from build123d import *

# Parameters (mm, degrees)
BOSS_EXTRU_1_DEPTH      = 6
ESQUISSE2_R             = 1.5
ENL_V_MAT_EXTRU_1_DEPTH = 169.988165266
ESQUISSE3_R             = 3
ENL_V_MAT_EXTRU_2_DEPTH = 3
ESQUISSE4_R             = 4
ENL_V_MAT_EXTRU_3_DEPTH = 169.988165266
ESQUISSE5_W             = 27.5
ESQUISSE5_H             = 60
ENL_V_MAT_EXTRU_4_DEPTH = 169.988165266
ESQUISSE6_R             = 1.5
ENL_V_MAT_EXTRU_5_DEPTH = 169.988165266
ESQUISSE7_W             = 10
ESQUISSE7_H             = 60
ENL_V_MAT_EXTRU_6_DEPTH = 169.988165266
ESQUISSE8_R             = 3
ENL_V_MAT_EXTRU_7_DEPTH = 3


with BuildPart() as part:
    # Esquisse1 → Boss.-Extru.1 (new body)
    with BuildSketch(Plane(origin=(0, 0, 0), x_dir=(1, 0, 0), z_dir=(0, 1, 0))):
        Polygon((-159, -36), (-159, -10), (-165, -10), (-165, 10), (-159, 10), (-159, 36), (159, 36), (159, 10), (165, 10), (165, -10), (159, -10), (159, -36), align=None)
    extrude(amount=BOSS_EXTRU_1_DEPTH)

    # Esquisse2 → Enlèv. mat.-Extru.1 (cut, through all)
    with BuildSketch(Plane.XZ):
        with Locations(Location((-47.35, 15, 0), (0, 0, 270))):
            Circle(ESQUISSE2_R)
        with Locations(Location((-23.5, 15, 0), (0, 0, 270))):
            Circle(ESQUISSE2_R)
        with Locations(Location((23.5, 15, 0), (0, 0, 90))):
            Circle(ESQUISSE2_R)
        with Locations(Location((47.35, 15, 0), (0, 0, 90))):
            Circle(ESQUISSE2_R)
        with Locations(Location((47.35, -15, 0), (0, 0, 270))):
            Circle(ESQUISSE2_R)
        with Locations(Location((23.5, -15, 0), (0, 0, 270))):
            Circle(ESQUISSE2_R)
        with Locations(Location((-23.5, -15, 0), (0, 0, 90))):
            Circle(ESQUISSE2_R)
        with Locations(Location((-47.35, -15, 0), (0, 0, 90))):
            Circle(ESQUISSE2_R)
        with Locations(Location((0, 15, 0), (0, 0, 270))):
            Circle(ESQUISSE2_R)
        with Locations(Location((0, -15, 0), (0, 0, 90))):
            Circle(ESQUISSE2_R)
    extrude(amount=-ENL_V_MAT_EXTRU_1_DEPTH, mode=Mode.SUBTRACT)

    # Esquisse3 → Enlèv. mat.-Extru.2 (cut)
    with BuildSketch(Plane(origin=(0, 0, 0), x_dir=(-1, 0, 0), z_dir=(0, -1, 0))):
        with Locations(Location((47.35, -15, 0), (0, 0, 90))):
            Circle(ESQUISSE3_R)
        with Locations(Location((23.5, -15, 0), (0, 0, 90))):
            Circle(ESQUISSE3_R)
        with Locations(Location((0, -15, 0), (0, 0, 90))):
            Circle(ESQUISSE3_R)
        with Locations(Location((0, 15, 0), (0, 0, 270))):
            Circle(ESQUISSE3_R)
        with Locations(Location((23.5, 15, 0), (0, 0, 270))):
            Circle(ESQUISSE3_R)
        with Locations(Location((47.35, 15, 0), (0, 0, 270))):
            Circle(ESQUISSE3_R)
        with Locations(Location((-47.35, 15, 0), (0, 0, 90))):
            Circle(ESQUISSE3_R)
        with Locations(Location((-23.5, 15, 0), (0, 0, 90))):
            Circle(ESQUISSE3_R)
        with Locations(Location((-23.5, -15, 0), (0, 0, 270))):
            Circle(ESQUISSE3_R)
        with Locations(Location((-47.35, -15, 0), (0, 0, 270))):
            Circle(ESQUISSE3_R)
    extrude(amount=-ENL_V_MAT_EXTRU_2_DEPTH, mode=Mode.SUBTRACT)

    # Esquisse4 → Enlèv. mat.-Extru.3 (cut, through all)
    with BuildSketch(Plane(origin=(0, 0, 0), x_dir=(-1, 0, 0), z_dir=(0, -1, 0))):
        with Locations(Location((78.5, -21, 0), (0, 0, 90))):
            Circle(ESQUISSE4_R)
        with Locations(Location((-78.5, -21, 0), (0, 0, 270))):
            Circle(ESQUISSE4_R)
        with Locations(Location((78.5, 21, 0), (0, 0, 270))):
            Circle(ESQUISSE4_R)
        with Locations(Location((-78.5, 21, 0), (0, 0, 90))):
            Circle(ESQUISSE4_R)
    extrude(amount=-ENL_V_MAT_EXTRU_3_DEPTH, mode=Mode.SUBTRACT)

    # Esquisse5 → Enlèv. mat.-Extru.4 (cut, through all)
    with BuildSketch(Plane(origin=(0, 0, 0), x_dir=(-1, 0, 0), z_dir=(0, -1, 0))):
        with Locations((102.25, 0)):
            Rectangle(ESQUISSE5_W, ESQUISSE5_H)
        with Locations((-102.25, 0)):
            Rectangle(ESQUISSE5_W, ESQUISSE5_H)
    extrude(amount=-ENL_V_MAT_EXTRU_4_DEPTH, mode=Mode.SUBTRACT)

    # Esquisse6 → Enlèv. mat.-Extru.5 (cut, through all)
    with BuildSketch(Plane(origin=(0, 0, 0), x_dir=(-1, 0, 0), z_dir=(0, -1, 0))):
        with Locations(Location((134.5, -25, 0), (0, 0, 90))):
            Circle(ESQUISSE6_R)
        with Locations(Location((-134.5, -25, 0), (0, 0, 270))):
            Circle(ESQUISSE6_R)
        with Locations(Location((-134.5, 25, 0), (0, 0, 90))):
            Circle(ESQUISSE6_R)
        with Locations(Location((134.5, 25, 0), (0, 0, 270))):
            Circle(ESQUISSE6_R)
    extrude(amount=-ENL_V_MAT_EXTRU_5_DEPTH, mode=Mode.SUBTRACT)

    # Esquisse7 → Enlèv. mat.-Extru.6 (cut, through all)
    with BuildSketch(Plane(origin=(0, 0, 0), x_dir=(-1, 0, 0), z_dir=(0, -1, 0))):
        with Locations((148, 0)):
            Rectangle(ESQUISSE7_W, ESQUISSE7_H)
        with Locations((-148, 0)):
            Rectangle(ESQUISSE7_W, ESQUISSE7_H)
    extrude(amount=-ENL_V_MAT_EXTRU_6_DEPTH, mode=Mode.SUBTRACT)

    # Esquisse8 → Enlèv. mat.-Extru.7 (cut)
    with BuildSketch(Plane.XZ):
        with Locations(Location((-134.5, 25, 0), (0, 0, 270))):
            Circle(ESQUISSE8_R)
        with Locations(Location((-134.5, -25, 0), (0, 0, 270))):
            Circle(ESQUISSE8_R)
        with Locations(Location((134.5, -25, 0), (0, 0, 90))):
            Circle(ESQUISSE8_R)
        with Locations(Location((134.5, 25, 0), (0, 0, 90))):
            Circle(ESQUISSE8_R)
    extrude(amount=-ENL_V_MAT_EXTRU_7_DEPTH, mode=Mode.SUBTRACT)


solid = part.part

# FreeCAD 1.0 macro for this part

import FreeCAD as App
import Part
import Sketcher
from FreeCAD import Vector

doc = App.newDocument("Part")
params = doc.addObject("Spreadsheet::Sheet", "Params")
for row, (alias, value) in enumerate([
    ("sketch1_width", "318 mm"),
    ("sketch1_width2", "6 mm"),
    ("sketch1_height", "26 mm"),
    ("sketch1_height2", "20 mm"),
    ("pad1_length", "6 mm"),
    ("sketch2_diameter", "3 mm"),
    ("sketch3_diameter", "6 mm"),
    ("pocket2_length", "3 mm"),
    ("sketch4_diameter", "8 mm"),
    ("sketch5_height", "60 mm"),
    ("sketch5_width", "27.5 mm"),
    ("sketch6_diameter", "3 mm"),
    ("sketch7_width", "10 mm"),
    ("sketch7_height", "60 mm"),
    ("sketch8_diameter", "6 mm"),
    ("pocket7_length", "3 mm"),
], start=1):
    params.set(f"A{row}", alias)
    params.set(f"B{row}", "=" + value)
    params.setAlias(f"B{row}", alias)

body = doc.addObject("PartDesign::Body", "Body")

# Sketch on XZ plane
sketch1 = doc.addObject("Sketcher::SketchObject", "Sketch")
body.addObject(sketch1)
sketch1.AttachmentSupport = (doc.XZ_Plane, [""])
sketch1.MapMode = "FlatFace"
sketch1.addGeometry(Part.LineSegment(Vector(-159, 10, 0), Vector(-159, 36, 0)), False)
sketch1.addGeometry(Part.LineSegment(Vector(-159, 36, 0), Vector(159, 36, 0)), False)
sketch1.addGeometry(Part.LineSegment(Vector(159, 36, 0), Vector(159, 10, 0)), False)
sketch1.addGeometry(Part.LineSegment(Vector(159, 10, 0), Vector(165, 10, 0)), False)
sketch1.addGeometry(Part.LineSegment(Vector(165, 10, 0), Vector(165, -10, 0)), False)
sketch1.addGeometry(Part.LineSegment(Vector(165, -10, 0), Vector(159, -10, 0)), False)
sketch1.addGeometry(Part.LineSegment(Vector(159, -10, 0), Vector(159, -36, 0)), False)
sketch1.addGeometry(Part.LineSegment(Vector(159, -36, 0), Vector(-159, -36, 0)), False)
sketch1.addGeometry(Part.LineSegment(Vector(-159, -36, 0), Vector(-159, -10, 0)), False)
sketch1.addGeometry(Part.LineSegment(Vector(-159, -10, 0), Vector(-165, -10, 0)), False)
sketch1.addGeometry(Part.LineSegment(Vector(-165, -10, 0), Vector(-165, 10, 0)), False)
sketch1.addGeometry(Part.LineSegment(Vector(-165, 10, 0), Vector(-159, 10, 0)), False)
sketch1.addConstraint(Sketcher.Constraint("Coincident", 0, 2, 1, 1))
sketch1.addConstraint(Sketcher.Constraint("Coincident", 1, 2, 2, 1))
sketch1.addConstraint(Sketcher.Constraint("Coincident", 2, 2, 3, 1))
sketch1.addConstraint(Sketcher.Constraint("Coincident", 3, 2, 4, 1))
sketch1.addConstraint(Sketcher.Constraint("Coincident", 4, 2, 5, 1))
sketch1.addConstraint(Sketcher.Constraint("Coincident", 5, 2, 6, 1))
sketch1.addConstraint(Sketcher.Constraint("Coincident", 6, 2, 7, 1))
sketch1.addConstraint(Sketcher.Constraint("Coincident", 7, 2, 8, 1))
sketch1.addConstraint(Sketcher.Constraint("Coincident", 8, 2, 9, 1))
sketch1.addConstraint(Sketcher.Constraint("Coincident", 9, 2, 10, 1))
sketch1.addConstraint(Sketcher.Constraint("Coincident", 10, 2, 11, 1))
sketch1.addConstraint(Sketcher.Constraint("Coincident", 11, 2, 0, 1))
sketch1.addConstraint(Sketcher.Constraint("Vertical", 0))
sketch1.addConstraint(Sketcher.Constraint("Horizontal", 1))
sketch1.addConstraint(Sketcher.Constraint("Vertical", 2))
sketch1.addConstraint(Sketcher.Constraint("Horizontal", 3))
sketch1.addConstraint(Sketcher.Constraint("Vertical", 4))
sketch1.addConstraint(Sketcher.Constraint("Horizontal", 5))
sketch1.addConstraint(Sketcher.Constraint("Vertical", 6))
sketch1.addConstraint(Sketcher.Constraint("Horizontal", 7))
sketch1.addConstraint(Sketcher.Constraint("Vertical", 8))
sketch1.addConstraint(Sketcher.Constraint("Horizontal", 9))
sketch1.addConstraint(Sketcher.Constraint("Vertical", 10))
sketch1.addConstraint(Sketcher.Constraint("Horizontal", 11))
sketch1.addConstraint(Sketcher.Constraint("Symmetric", 0, 2, 6, 2, -1, 1))
sketch1.addConstraint(Sketcher.Constraint("Symmetric", 2, 2, 8, 2, -1, 1))
sketch1.addConstraint(Sketcher.Constraint("Symmetric", 4, 2, 10, 2, -1, 1))
sketch1.addConstraint(Sketcher.Constraint("Symmetric", 5, 2, 8, 2, -2))
sketch1.addConstraint(Sketcher.Constraint("DistanceX", 1, 1, 1, 2, 318.0))
sketch1.addConstraint(Sketcher.Constraint("DistanceX", 3, 1, 3, 2, 6.0))
sketch1.addConstraint(Sketcher.Constraint("DistanceY", 0, 1, 0, 2, 26.0))
sketch1.addConstraint(Sketcher.Constraint("DistanceY", 4, 2, 4, 1, 20.0))
sketch1.setExpression("Constraints[28]", "Params.sketch1_width")
sketch1.setExpression("Constraints[29]", "Params.sketch1_width2")
sketch1.setExpression("Constraints[30]", "Params.sketch1_height")
sketch1.setExpression("Constraints[31]", "Params.sketch1_height2")
pad1 = doc.addObject("PartDesign::Pad", "Pad")
body.addObject(pad1)
pad1.Profile = sketch1
pad1.setExpression("Length", "Params.pad1_length")
pad1.Reversed = True

# Sketch on XZ plane
sketch2 = doc.addObject("Sketcher::SketchObject", "Sketch001")
body.addObject(sketch2)
sketch2.AttachmentSupport = (doc.XZ_Plane, [""])
sketch2.MapMode = "FlatFace"
sketch2.addGeometry(Part.Circle(Vector(-47.4, 15, 0), Vector(0, 0, 1), 1.5), False)
sketch2.addGeometry(Part.Circle(Vector(-23.5, 15, 0), Vector(0, 0, 1), 1.5), False)
sketch2.addGeometry(Part.Circle(Vector(23.5, 15, 0), Vector(0, 0, 1), 1.5), False)
sketch2.addGeometry(Part.Circle(Vector(47.4, 15, 0), Vector(0, 0, 1), 1.5), False)
sketch2.addGeometry(Part.Circle(Vector(47.4, -15, 0), Vector(0, 0, 1), 1.5), False)
sketch2.addGeometry(Part.Circle(Vector(23.5, -15, 0), Vector(0, 0, 1), 1.5), False)
sketch2.addGeometry(Part.Circle(Vector(-23.5, -15, 0), Vector(0, 0, 1), 1.5), False)
sketch2.addGeometry(Part.Circle(Vector(-47.4, -15, 0), Vector(0, 0, 1), 1.5), False)
sketch2.addGeometry(Part.Circle(Vector(0, 15, 0), Vector(0, 0, 1), 1.5), False)
sketch2.addGeometry(Part.Circle(Vector(0, -15, 0), Vector(0, 0, 1), 1.5), False)
sketch2.addConstraint(Sketcher.Constraint("Equal", 0, 1))
sketch2.addConstraint(Sketcher.Constraint("Equal", 1, 2))
sketch2.addConstraint(Sketcher.Constraint("Equal", 2, 3))
sketch2.addConstraint(Sketcher.Constraint("Equal", 3, 4))
sketch2.addConstraint(Sketcher.Constraint("Equal", 4, 5))
sketch2.addConstraint(Sketcher.Constraint("Equal", 5, 6))
sketch2.addConstraint(Sketcher.Constraint("Equal", 6, 7))
sketch2.addConstraint(Sketcher.Constraint("Equal", 7, 8))
sketch2.addConstraint(Sketcher.Constraint("Equal", 8, 9))
sketch2.addConstraint(Sketcher.Constraint("Symmetric", 0, 3, 4, 3, -1, 1))
sketch2.addConstraint(Sketcher.Constraint("Symmetric", 1, 3, 5, 3, -1, 1))
sketch2.addConstraint(Sketcher.Constraint("Symmetric", 2, 3, 6, 3, -1, 1))
sketch2.addConstraint(Sketcher.Constraint("Symmetric", 3, 3, 7, 3, -1, 1))
sketch2.addConstraint(Sketcher.Constraint("Symmetric", 8, 3, 9, 3, -1, 1))
sketch2.addConstraint(Sketcher.Constraint("Symmetric", 1, 3, 2, 3, -2))
sketch2.addConstraint(Sketcher.Constraint("Symmetric", 0, 3, 3, 3, -2))
sketch2.addConstraint(Sketcher.Constraint("PointOnObject", 8, 3, -2))
sketch2.addConstraint(Sketcher.Constraint("Horizontal", 0, 3, 1, 3))
sketch2.addConstraint(Sketcher.Constraint("Horizontal", 3, 3, 8, 3))
sketch2.addConstraint(Sketcher.Constraint("Diameter", 0, 3.0))
sketch2.addConstraint(Sketcher.Constraint("DistanceY", -1, 1, 0, 3, 15.0))
sketch2.addConstraint(Sketcher.Constraint("DistanceX", 1, 3, 2, 3, 47.0))
sketch2.addConstraint(Sketcher.Constraint("DistanceX", 0, 3, 3, 3, 94.7))
sketch2.setExpression("Constraints[19]", "Params.sketch2_diameter")
pocket1 = doc.addObject("PartDesign::Pocket", "Pocket")
body.addObject(pocket1)
pocket1.Profile = sketch2
pocket1.Type = "ThroughAll"

# Sketch on XZ plane
sketch3 = doc.addObject("Sketcher::SketchObject", "Sketch002")
body.addObject(sketch3)
sketch3.AttachmentSupport = (doc.XZ_Plane, [""])
sketch3.MapMode = "FlatFace"
sketch3.addGeometry(Part.Circle(Vector(-47.4, 15, 0), Vector(0, 0, 1), 3), False)
sketch3.addGeometry(Part.Circle(Vector(-23.5, 15, 0), Vector(0, 0, 1), 3), False)
sketch3.addGeometry(Part.Circle(Vector(0, 15, 0), Vector(0, 0, 1), 3), False)
sketch3.addGeometry(Part.Circle(Vector(0, -15, 0), Vector(0, 0, 1), 3), False)
sketch3.addGeometry(Part.Circle(Vector(-23.5, -15, 0), Vector(0, 0, 1), 3), False)
sketch3.addGeometry(Part.Circle(Vector(-47.4, -15, 0), Vector(0, 0, 1), 3), False)
sketch3.addGeometry(Part.Circle(Vector(47.4, -15, 0), Vector(0, 0, 1), 3), False)
sketch3.addGeometry(Part.Circle(Vector(23.5, -15, 0), Vector(0, 0, 1), 3), False)
sketch3.addGeometry(Part.Circle(Vector(23.5, 15, 0), Vector(0, 0, 1), 3), False)
sketch3.addGeometry(Part.Circle(Vector(47.4, 15, 0), Vector(0, 0, 1), 3), False)
sketch3.addConstraint(Sketcher.Constraint("Equal", 0, 1))
sketch3.addConstraint(Sketcher.Constraint("Equal", 1, 2))
sketch3.addConstraint(Sketcher.Constraint("Equal", 2, 3))
sketch3.addConstraint(Sketcher.Constraint("Equal", 3, 4))
sketch3.addConstraint(Sketcher.Constraint("Equal", 4, 5))
sketch3.addConstraint(Sketcher.Constraint("Equal", 5, 6))
sketch3.addConstraint(Sketcher.Constraint("Equal", 6, 7))
sketch3.addConstraint(Sketcher.Constraint("Equal", 7, 8))
sketch3.addConstraint(Sketcher.Constraint("Equal", 8, 9))
sketch3.addConstraint(Sketcher.Constraint("Symmetric", 2, 3, 3, 3, -1, 1))
sketch3.addConstraint(Sketcher.Constraint("Symmetric", 0, 3, 6, 3, -1, 1))
sketch3.addConstraint(Sketcher.Constraint("Symmetric", 1, 3, 7, 3, -1, 1))
sketch3.addConstraint(Sketcher.Constraint("Symmetric", 4, 3, 8, 3, -1, 1))
sketch3.addConstraint(Sketcher.Constraint("Symmetric", 5, 3, 9, 3, -1, 1))
sketch3.addConstraint(Sketcher.Constraint("Symmetric", 5, 3, 6, 3, -2))
sketch3.addConstraint(Sketcher.Constraint("Symmetric", 4, 3, 7, 3, -2))
sketch3.addConstraint(Sketcher.Constraint("PointOnObject", 2, 3, -2))
sketch3.addConstraint(Sketcher.Constraint("Horizontal", 0, 3, 1, 3))
sketch3.addConstraint(Sketcher.Constraint("Horizontal", 1, 3, 2, 3))
sketch3.addConstraint(Sketcher.Constraint("Diameter", 0, 6.0))
sketch3.addConstraint(Sketcher.Constraint("DistanceY", -1, 1, 0, 3, 15.0))
sketch3.addConstraint(Sketcher.Constraint("DistanceX", 4, 3, 7, 3, 47.0))
sketch3.addConstraint(Sketcher.Constraint("DistanceX", 5, 3, 6, 3, 94.7))
sketch3.setExpression("Constraints[19]", "Params.sketch3_diameter")
pocket2 = doc.addObject("PartDesign::Pocket", "Pocket001")
body.addObject(pocket2)
pocket2.Profile = sketch3
pocket2.setExpression("Length", "Params.pocket2_length")

# Sketch on XZ plane
sketch4 = doc.addObject("Sketcher::SketchObject", "Sketch003")
body.addObject(sketch4)
sketch4.AttachmentSupport = (doc.XZ_Plane, [""])
sketch4.MapMode = "FlatFace"
sketch4.addGeometry(Part.Circle(Vector(-78.5, 21, 0), Vector(0, 0, 1), 4), False)
sketch4.addGeometry(Part.Circle(Vector(78.5, 21, 0), Vector(0, 0, 1), 4), False)
sketch4.addGeometry(Part.Circle(Vector(-78.5, -21, 0), Vector(0, 0, 1), 4), False)
sketch4.addGeometry(Part.Circle(Vector(78.5, -21, 0), Vector(0, 0, 1), 4), False)
sketch4.addConstraint(Sketcher.Constraint("Equal", 0, 1))
sketch4.addConstraint(Sketcher.Constraint("Equal", 1, 2))
sketch4.addConstraint(Sketcher.Constraint("Equal", 2, 3))
sketch4.addConstraint(Sketcher.Constraint("Symmetric", 1, 3, 2, 3, -1, 1))
sketch4.addConstraint(Sketcher.Constraint("Symmetric", 0, 3, 3, 3, -1, 1))
sketch4.addConstraint(Sketcher.Constraint("Symmetric", 0, 3, 1, 3, -2))
sketch4.addConstraint(Sketcher.Constraint("Diameter", 0, 8.0))
sketch4.addConstraint(Sketcher.Constraint("DistanceY", -1, 1, 0, 3, 21.0))
sketch4.addConstraint(Sketcher.Constraint("DistanceX", 0, 3, 1, 3, 157.0))
sketch4.setExpression("Constraints[6]", "Params.sketch4_diameter")
pocket3 = doc.addObject("PartDesign::Pocket", "Pocket002")
body.addObject(pocket3)
pocket3.Profile = sketch4
pocket3.Type = "ThroughAll"

# Sketch on XZ plane
sketch5 = doc.addObject("Sketcher::SketchObject", "Sketch004")
body.addObject(sketch5)
sketch5.AttachmentSupport = (doc.XZ_Plane, [""])
sketch5.MapMode = "FlatFace"
sketch5.addGeometry(Part.LineSegment(Vector(-88, -30, 0), Vector(-88, 30, 0)), False)
sketch5.addGeometry(Part.LineSegment(Vector(-88, 30, 0), Vector(-116, 30, 0)), False)
sketch5.addGeometry(Part.LineSegment(Vector(-116, 30, 0), Vector(-116, -30, 0)), False)
sketch5.addGeometry(Part.LineSegment(Vector(-116, -30, 0), Vector(-88, -30, 0)), False)
sketch5.addGeometry(Part.LineSegment(Vector(116, -30, 0), Vector(116, 30, 0)), False)
sketch5.addGeometry(Part.LineSegment(Vector(116, 30, 0), Vector(88, 30, 0)), False)
sketch5.addGeometry(Part.LineSegment(Vector(88, 30, 0), Vector(88, -30, 0)), False)
sketch5.addGeometry(Part.LineSegment(Vector(88, -30, 0), Vector(116, -30, 0)), False)
sketch5.addConstraint(Sketcher.Constraint("Coincident", 0, 2, 1, 1))
sketch5.addConstraint(Sketcher.Constraint("Coincident", 1, 2, 2, 1))
sketch5.addConstraint(Sketcher.Constraint("Coincident", 2, 2, 3, 1))
sketch5.addConstraint(Sketcher.Constraint("Coincident", 3, 2, 0, 1))
sketch5.addConstraint(Sketcher.Constraint("Coincident", 4, 2, 5, 1))
sketch5.addConstraint(Sketcher.Constraint("Coincident", 5, 2, 6, 1))
sketch5.addConstraint(Sketcher.Constraint("Coincident", 6, 2, 7, 1))
sketch5.addConstraint(Sketcher.Constraint("Coincident", 7, 2, 4, 1))
sketch5.addConstraint(Sketcher.Constraint("Vertical", 0))
sketch5.addConstraint(Sketcher.Constraint("Horizontal", 1))
sketch5.addConstraint(Sketcher.Constraint("Vertical", 2))
sketch5.addConstraint(Sketcher.Constraint("Horizontal", 3))
sketch5.addConstraint(Sketcher.Constraint("Vertical", 4))
sketch5.addConstraint(Sketcher.Constraint("Horizontal", 5))
sketch5.addConstraint(Sketcher.Constraint("Vertical", 6))
sketch5.addConstraint(Sketcher.Constraint("Horizontal", 7))
sketch5.addConstraint(Sketcher.Constraint("Symmetric", 2, 2, 4, 2, -1, 1))
sketch5.addConstraint(Sketcher.Constraint("Symmetric", 0, 2, 6, 2, -1, 1))
sketch5.addConstraint(Sketcher.Constraint("Horizontal", 1, 2, 4, 2))
sketch5.addConstraint(Sketcher.Constraint("DistanceY", 0, 1, 0, 2, 60.0))
sketch5.addConstraint(Sketcher.Constraint("DistanceX", 1, 2, 1, 1, 27.5))
sketch5.addConstraint(Sketcher.Constraint("DistanceX", 1, 2, -1, 1, 116.0))
sketch5.setExpression("Constraints[19]", "Params.sketch5_height")
sketch5.setExpression("Constraints[20]", "Params.sketch5_width")
pocket4 = doc.addObject("PartDesign::Pocket", "Pocket003")
body.addObject(pocket4)
pocket4.Profile = sketch5
pocket4.Type = "ThroughAll"

# Sketch on XZ plane
sketch6 = doc.addObject("Sketcher::SketchObject", "Sketch005")
body.addObject(sketch6)
sketch6.AttachmentSupport = (doc.XZ_Plane, [""])
sketch6.MapMode = "FlatFace"
sketch6.addGeometry(Part.Circle(Vector(-134.5, 25, 0), Vector(0, 0, 1), 1.5), False)
sketch6.addGeometry(Part.Circle(Vector(134.5, 25, 0), Vector(0, 0, 1), 1.5), False)
sketch6.addGeometry(Part.Circle(Vector(134.5, -25, 0), Vector(0, 0, 1), 1.5), False)
sketch6.addGeometry(Part.Circle(Vector(-134.5, -25, 0), Vector(0, 0, 1), 1.5), False)
sketch6.addConstraint(Sketcher.Constraint("Equal", 0, 1))
sketch6.addConstraint(Sketcher.Constraint("Equal", 1, 2))
sketch6.addConstraint(Sketcher.Constraint("Equal", 2, 3))
sketch6.addConstraint(Sketcher.Constraint("Symmetric", 0, 3, 2, 3, -1, 1))
sketch6.addConstraint(Sketcher.Constraint("Symmetric", 1, 3, 3, 3, -1, 1))
sketch6.addConstraint(Sketcher.Constraint("Symmetric", 0, 3, 1, 3, -2))
sketch6.addConstraint(Sketcher.Constraint("Diameter", 0, 3.0))
sketch6.addConstraint(Sketcher.Constraint("DistanceY", -1, 1, 0, 3, 25.0))
sketch6.addConstraint(Sketcher.Constraint("DistanceX", 0, 3, 1, 3, 269.0))
sketch6.setExpression("Constraints[6]", "Params.sketch6_diameter")
pocket5 = doc.addObject("PartDesign::Pocket", "Pocket004")
body.addObject(pocket5)
pocket5.Profile = sketch6
pocket5.Type = "ThroughAll"

# Sketch on XZ plane
sketch7 = doc.addObject("Sketcher::SketchObject", "Sketch006")
body.addObject(sketch7)
sketch7.AttachmentSupport = (doc.XZ_Plane, [""])
sketch7.MapMode = "FlatFace"
sketch7.addGeometry(Part.LineSegment(Vector(-143, -30, 0), Vector(-143, 30, 0)), False)
sketch7.addGeometry(Part.LineSegment(Vector(-143, 30, 0), Vector(-153, 30, 0)), False)
sketch7.addGeometry(Part.LineSegment(Vector(-153, 30, 0), Vector(-153, -30, 0)), False)
sketch7.addGeometry(Part.LineSegment(Vector(-153, -30, 0), Vector(-143, -30, 0)), False)
sketch7.addGeometry(Part.LineSegment(Vector(153, -30, 0), Vector(153, 30, 0)), False)
sketch7.addGeometry(Part.LineSegment(Vector(153, 30, 0), Vector(143, 30, 0)), False)
sketch7.addGeometry(Part.LineSegment(Vector(143, 30, 0), Vector(143, -30, 0)), False)
sketch7.addGeometry(Part.LineSegment(Vector(143, -30, 0), Vector(153, -30, 0)), False)
sketch7.addConstraint(Sketcher.Constraint("Coincident", 0, 2, 1, 1))
sketch7.addConstraint(Sketcher.Constraint("Coincident", 1, 2, 2, 1))
sketch7.addConstraint(Sketcher.Constraint("Coincident", 2, 2, 3, 1))
sketch7.addConstraint(Sketcher.Constraint("Coincident", 3, 2, 0, 1))
sketch7.addConstraint(Sketcher.Constraint("Coincident", 4, 2, 5, 1))
sketch7.addConstraint(Sketcher.Constraint("Coincident", 5, 2, 6, 1))
sketch7.addConstraint(Sketcher.Constraint("Coincident", 6, 2, 7, 1))
sketch7.addConstraint(Sketcher.Constraint("Coincident", 7, 2, 4, 1))
sketch7.addConstraint(Sketcher.Constraint("Vertical", 0))
sketch7.addConstraint(Sketcher.Constraint("Horizontal", 1))
sketch7.addConstraint(Sketcher.Constraint("Vertical", 2))
sketch7.addConstraint(Sketcher.Constraint("Horizontal", 3))
sketch7.addConstraint(Sketcher.Constraint("Vertical", 4))
sketch7.addConstraint(Sketcher.Constraint("Horizontal", 5))
sketch7.addConstraint(Sketcher.Constraint("Vertical", 6))
sketch7.addConstraint(Sketcher.Constraint("Horizontal", 7))
sketch7.addConstraint(Sketcher.Constraint("Symmetric", 2, 2, 4, 2, -1, 1))
sketch7.addConstraint(Sketcher.Constraint("Symmetric", 0, 2, 6, 2, -1, 1))
sketch7.addConstraint(Sketcher.Constraint("Horizontal", 1, 2, 4, 2))
sketch7.addConstraint(Sketcher.Constraint("DistanceX", 1, 2, 1, 1, 10.0))
sketch7.addConstraint(Sketcher.Constraint("DistanceY", 0, 1, 0, 2, 60.0))
sketch7.addConstraint(Sketcher.Constraint("DistanceX", 0, 2, -1, 1, 143.0))
sketch7.setExpression("Constraints[19]", "Params.sketch7_width")
sketch7.setExpression("Constraints[20]", "Params.sketch7_height")
pocket6 = doc.addObject("PartDesign::Pocket", "Pocket005")
body.addObject(pocket6)
pocket6.Profile = sketch7
pocket6.Type = "ThroughAll"

# Sketch on XZ plane
sketch8 = doc.addObject("Sketcher::SketchObject", "Sketch007")
body.addObject(sketch8)
sketch8.AttachmentSupport = (doc.XZ_Plane, [""])
sketch8.MapMode = "FlatFace"
sketch8.addGeometry(Part.Circle(Vector(-134.5, 25, 0), Vector(0, 0, 1), 3), False)
sketch8.addGeometry(Part.Circle(Vector(-134.5, -25, 0), Vector(0, 0, 1), 3), False)
sketch8.addGeometry(Part.Circle(Vector(134.5, -25, 0), Vector(0, 0, 1), 3), False)
sketch8.addGeometry(Part.Circle(Vector(134.5, 25, 0), Vector(0, 0, 1), 3), False)
sketch8.addConstraint(Sketcher.Constraint("Equal", 0, 1))
sketch8.addConstraint(Sketcher.Constraint("Equal", 1, 2))
sketch8.addConstraint(Sketcher.Constraint("Equal", 2, 3))
sketch8.addConstraint(Sketcher.Constraint("Symmetric", 0, 3, 2, 3, -1, 1))
sketch8.addConstraint(Sketcher.Constraint("Symmetric", 1, 3, 3, 3, -1, 1))
sketch8.addConstraint(Sketcher.Constraint("Symmetric", 1, 3, 2, 3, -2))
sketch8.addConstraint(Sketcher.Constraint("Diameter", 0, 6.0))
sketch8.addConstraint(Sketcher.Constraint("DistanceY", -1, 1, 0, 3, 25.0))
sketch8.addConstraint(Sketcher.Constraint("DistanceX", 1, 3, 2, 3, 269.0))
sketch8.setExpression("Constraints[6]", "Params.sketch8_diameter")
pocket7 = doc.addObject("PartDesign::Pocket", "Pocket006")
body.addObject(pocket7)
pocket7.Profile = sketch8
pocket7.setExpression("Length", "Params.pocket7_length")

doc.recompute()
